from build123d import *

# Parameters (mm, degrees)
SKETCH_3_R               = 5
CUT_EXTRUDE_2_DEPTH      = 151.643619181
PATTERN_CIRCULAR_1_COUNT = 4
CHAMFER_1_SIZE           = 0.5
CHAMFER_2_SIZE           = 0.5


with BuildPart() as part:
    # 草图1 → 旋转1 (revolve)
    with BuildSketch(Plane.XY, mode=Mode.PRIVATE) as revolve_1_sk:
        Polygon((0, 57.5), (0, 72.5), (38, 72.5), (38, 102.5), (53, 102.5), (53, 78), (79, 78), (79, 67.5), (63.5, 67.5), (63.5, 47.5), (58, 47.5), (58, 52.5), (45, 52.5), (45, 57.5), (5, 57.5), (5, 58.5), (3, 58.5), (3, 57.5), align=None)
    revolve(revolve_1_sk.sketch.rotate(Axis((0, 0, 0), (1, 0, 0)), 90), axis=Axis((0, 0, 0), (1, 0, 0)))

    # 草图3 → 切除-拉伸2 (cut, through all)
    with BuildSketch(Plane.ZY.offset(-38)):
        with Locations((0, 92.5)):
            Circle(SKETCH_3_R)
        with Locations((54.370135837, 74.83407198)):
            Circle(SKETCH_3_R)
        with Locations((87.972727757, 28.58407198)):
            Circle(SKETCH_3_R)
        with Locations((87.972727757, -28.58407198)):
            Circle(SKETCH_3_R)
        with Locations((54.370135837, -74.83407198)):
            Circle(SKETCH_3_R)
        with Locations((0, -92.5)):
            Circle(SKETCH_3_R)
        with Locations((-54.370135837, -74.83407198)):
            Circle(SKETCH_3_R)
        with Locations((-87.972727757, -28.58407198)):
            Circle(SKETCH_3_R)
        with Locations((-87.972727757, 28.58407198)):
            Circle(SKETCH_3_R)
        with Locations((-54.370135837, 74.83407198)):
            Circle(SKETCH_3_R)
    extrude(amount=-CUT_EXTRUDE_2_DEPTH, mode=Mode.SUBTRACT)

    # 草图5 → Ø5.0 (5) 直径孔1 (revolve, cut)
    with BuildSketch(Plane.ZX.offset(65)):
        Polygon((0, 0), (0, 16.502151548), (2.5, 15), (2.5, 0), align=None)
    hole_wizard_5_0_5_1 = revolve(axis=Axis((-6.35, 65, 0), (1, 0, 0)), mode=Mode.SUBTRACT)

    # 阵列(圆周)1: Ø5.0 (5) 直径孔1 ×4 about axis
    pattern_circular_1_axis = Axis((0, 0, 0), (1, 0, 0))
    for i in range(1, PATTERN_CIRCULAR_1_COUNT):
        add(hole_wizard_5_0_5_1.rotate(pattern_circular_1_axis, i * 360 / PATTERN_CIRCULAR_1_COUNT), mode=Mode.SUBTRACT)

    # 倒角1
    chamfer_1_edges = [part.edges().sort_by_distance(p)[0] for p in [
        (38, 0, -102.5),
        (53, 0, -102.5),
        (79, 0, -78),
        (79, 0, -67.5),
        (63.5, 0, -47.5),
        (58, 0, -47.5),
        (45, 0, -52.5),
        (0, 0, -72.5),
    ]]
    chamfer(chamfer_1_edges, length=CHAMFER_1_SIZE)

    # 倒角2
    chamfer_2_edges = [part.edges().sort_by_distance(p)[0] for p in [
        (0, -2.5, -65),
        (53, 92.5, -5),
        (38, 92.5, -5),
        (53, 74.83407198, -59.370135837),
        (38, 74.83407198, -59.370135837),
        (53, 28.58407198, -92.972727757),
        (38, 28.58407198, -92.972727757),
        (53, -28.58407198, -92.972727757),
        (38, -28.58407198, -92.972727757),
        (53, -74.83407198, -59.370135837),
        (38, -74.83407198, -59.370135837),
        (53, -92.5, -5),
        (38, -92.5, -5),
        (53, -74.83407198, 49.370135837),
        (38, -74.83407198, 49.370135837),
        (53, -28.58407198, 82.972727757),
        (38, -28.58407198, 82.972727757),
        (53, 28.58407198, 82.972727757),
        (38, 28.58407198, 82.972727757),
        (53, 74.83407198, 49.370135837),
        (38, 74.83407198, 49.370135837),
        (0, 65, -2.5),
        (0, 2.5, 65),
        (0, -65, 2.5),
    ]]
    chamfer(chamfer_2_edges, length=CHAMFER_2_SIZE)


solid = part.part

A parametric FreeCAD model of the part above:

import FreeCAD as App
import Part
import Sketcher

V = App.Vector
Q = App.Units.Quantity


def edges_at(feature, points):
    """Names of the edges that pass closest to the given points."""
    edges = feature.Shape.Edges
    near = lambda p: min(range(len(edges)), key=lambda i: edges[i].distToShape(Part.Vertex(*p))[0])
    return sorted({f"Edge{near(p) + 1}" for p in points})


def add_polygon(sketch, points):
    """Adds a closed chain of lines whose ends are joined by coincident constraints."""
    first, n = sketch.GeometryCount, len(points)
    for a, b in zip(points, points[1:] + points[:1]):
        sketch.addGeometry(Part.LineSegment(App.Vector(*a, 0), App.Vector(*b, 0)), False)
    for i in range(n):
        sketch.addConstraint(Sketcher.Constraint("Coincident", first + i, 2, first + (i + 1) % n, 1))

doc = App.newDocument("Part")
body = doc.addObject("PartDesign::Body", "Body")

# Sketch on XY plane
sketch1 = body.newObject("Sketcher::SketchObject", "Sketch")
sketch1.AttachmentSupport = (doc.getObject("XY_Plane"), [""])
sketch1.MapMode = "FlatFace"
add_polygon(sketch1, [(0, 72.5), (0, 57.5), (3, 57.5), (3, 58.5), (5, 58.5), (5, 57.5), (45, 57.5), (45, 52.5), (58, 52.5), (58, 47.5), (63.5, 47.5), (63.5, 67.5), (79, 67.5), (79, 78), (53, 78), (53, 102.5), (38, 102.5), (38, 72.5)])  # lines 0-17
sketch1.addConstraint(Sketcher.Constraint("Vertical", 0))
sketch1.addConstraint(Sketcher.Constraint("Horizontal", 1))
sketch1.addConstraint(Sketcher.Constraint("Vertical", 2))
sketch1.addConstraint(Sketcher.Constraint("Horizontal", 3))
sketch1.addConstraint(Sketcher.Constraint("Vertical", 4))
sketch1.addConstraint(Sketcher.Constraint("Horizontal", 5))
sketch1.addConstraint(Sketcher.Constraint("Vertical", 6))
sketch1.addConstraint(Sketcher.Constraint("Horizontal", 7))
sketch1.addConstraint(Sketcher.Constraint("Vertical", 8))
sketch1.addConstraint(Sketcher.Constraint("Horizontal", 9))
sketch1.addConstraint(Sketcher.Constraint("Vertical", 10))
sketch1.addConstraint(Sketcher.Constraint("Horizontal", 11))
sketch1.addConstraint(Sketcher.Constraint("Vertical", 12))
sketch1.addConstraint(Sketcher.Constraint("Horizontal", 13))
sketch1.addConstraint(Sketcher.Constraint("Vertical", 14))
sketch1.addConstraint(Sketcher.Constraint("Horizontal", 15))
sketch1.addConstraint(Sketcher.Constraint("Vertical", 16))
sketch1.addConstraint(Sketcher.Constraint("Horizontal", 17))
sketch1.addConstraint(Sketcher.Constraint("PointOnObject", 0, 2, -2))
sketch1.addConstraint(Sketcher.Constraint("Horizontal", 1, 2, 4, 2))
sketch1.addConstraint(Sketcher.Constraint("Equal", 15, 0))
sketch1.addConstraint(Sketcher.Constraint("Equal", 6, 8))
sketch1.addConstraint(Sketcher.Constraint("DistanceX", 1, 1, 1, 2, 3.0))
sketch1.addConstraint(Sketcher.Constraint("DistanceX", 3, 1, 3, 2, 2.0))
sketch1.addConstraint(Sketcher.Constraint("DistanceX", 5, 1, 5, 2, 40.0))
sketch1.addConstraint(Sketcher.Constraint("DistanceX", 7, 1, 7, 2, 13.0))
sketch1.addConstraint(Sketcher.Constraint("DistanceX", 13, 2, 13, 1, 26.0))
sketch1.addConstraint(Sketcher.Constraint("DistanceX", 15, 2, 15, 1, 15.0))
sketch1.addConstraint(Sketcher.Constraint("DistanceX", 17, 2, 17, 1, 38.0))
sketch1.addConstraint(Sketcher.Constraint("DistanceY", 2, 1, 2, 2, 1.0))
sketch1.addConstraint(Sketcher.Constraint("DistanceY", 6, 2, 6, 1, 5.0))
sketch1.addConstraint(Sketcher.Constraint("DistanceY", 10, 1, 10, 2, 20.0))
sketch1.addConstraint(Sketcher.Constraint("DistanceY", 16, 2, 16, 1, 30.0))
sketch1.addConstraint(Sketcher.Constraint("DistanceX", 9, 1, 9, 2, 5.5))
sketch1.addConstraint(Sketcher.Constraint("DistanceY", 12, 1, 12, 2, 10.5))
sketch1.addConstraint(Sketcher.Constraint("DistanceY", -1, 1, 12, 2, 78.0))
revolution = body.newObject("PartDesign::Revolution", "Revolution")
revolution.Profile = sketch1
revolution.ReferenceAxis = (sketch1, ["H_Axis"])
revolution.Angle = 360

# Sketch on YZ plane
sketch2 = body.newObject("Sketcher::SketchObject", "Sketch001")
sketch2.AttachmentSupport = (doc.getObject("YZ_Plane"), [""])
sketch2.MapMode = "FlatFace"
sketch2.AttachmentOffset = App.Placement(V(0, 0, 38), App.Rotation())
sketch2.addGeometry(Part.Circle(V(92.5, 0, 0), V(0, 0, 1), 5), False)
sketch2.addGeometry(Part.Circle(V(74.834072, 54.370136, 0), V(0, 0, 1), 5), False)
sketch2.addGeometry(Part.Circle(V(28.584072, 87.972728, 0), V(0, 0, 1), 5), False)
sketch2.addGeometry(Part.Circle(V(-28.584072, 87.972728, 0), V(0, 0, 1), 5), False)
sketch2.addGeometry(Part.Circle(V(-74.834072, 54.370136, 0), V(0, 0, 1), 5), False)
sketch2.addGeometry(Part.Circle(V(-92.5, 0, 0), V(0, 0, 1), 5), False)
sketch2.addGeometry(Part.Circle(V(-74.834072, -54.370136, 0), V(0, 0, 1), 5), False)
sketch2.addGeometry(Part.Circle(V(-28.584072, -87.972728, 0), V(0, 0, 1), 5), False)
sketch2.addGeometry(Part.Circle(V(28.584072, -87.972728, 0), V(0, 0, 1), 5), False)
sketch2.addGeometry(Part.Circle(V(74.834072, -54.370136, 0), V(0, 0, 1), 5), False)
sketch2.addConstraint(Sketcher.Constraint("Equal", 0, 1))
sketch2.addConstraint(Sketcher.Constraint("Equal", 1, 2))
sketch2.addConstraint(Sketcher.Constraint("Equal", 2, 3))
sketch2.addConstraint(Sketcher.Constraint("Equal", 3, 4))
sketch2.addConstraint(Sketcher.Constraint("Equal", 4, 5))
sketch2.addConstraint(Sketcher.Constraint("Equal", 5, 6))
sketch2.addConstraint(Sketcher.Constraint("Equal", 6, 7))
sketch2.addConstraint(Sketcher.Constraint("Equal", 7, 8))
sketch2.addConstraint(Sketcher.Constraint("Equal", 8, 9))
sketch2.addConstraint(Sketcher.Constraint("Symmetric", 0, 3, 5, 3, -1, 1))
sketch2.addConstraint(Sketcher.Constraint("Symmetric", 1, 3, 6, 3, -1, 1))
sketch2.addConstraint(Sketcher.Constraint("Symmetric", 2, 3, 7, 3, -1, 1))
sketch2.addConstraint(Sketcher.Constraint("Symmetric", 3, 3, 8, 3, -1, 1))
sketch2.addConstraint(Sketcher.Constraint("Symmetric", 4, 3, 9, 3, -1, 1))
sketch2.addConstraint(Sketcher.Constraint("Symmetric", 2, 3, 3, 3, -2))
sketch2.addConstraint(Sketcher.Constraint("Symmetric", 1, 3, 4, 3, -2))
sketch2.addConstraint(Sketcher.Constraint("PointOnObject", 0, 3, -1))
sketch2.addConstraint(Sketcher.Constraint("Diameter", 0, 10.0))
sketch2.addConstraint(Sketcher.Constraint("DistanceX", 5, 3, 0, 3, 185.0))
sketch2.addConstraint(Sketcher.Constraint("DistanceX", 2, 3, 1, 3, 46.25))
sketch2.addConstraint(Sketcher.Constraint("DistanceX", -1, 1, 1, 3, 74.834072))
sketch2.addConstraint(Sketcher.Constraint("DistanceY", 1, 3, 2, 3, 33.602592))
sketch2.addConstraint(Sketcher.Constraint("DistanceY", 6, 3, 4, 3, 108.740272))
pocket1 = body.newObject("PartDesign::Pocket", "Pocket")
pocket1.Profile = sketch2
pocket1.Type = "ThroughAll"
pocket1.Reversed = True

# Sketch on XZ plane
sketch3 = body.newObject("Sketcher::SketchObject", "Sketch002")
sketch3.AttachmentSupport = (doc.getObject("XZ_Plane"), [""])
sketch3.MapMode = "FlatFace"
sketch3.AttachmentOffset = App.Placement(V(0, 0, -65), App.Rotation())
add_polygon(sketch3, [(16.502152, 0), (0, 0), (0, 2.5), (15, 2.5)])  # lines 0-3
sketch3.addConstraint(Sketcher.Constraint("Horizontal", 0))
sketch3.addConstraint(Sketcher.Constraint("Vertical", 1))
sketch3.addConstraint(Sketcher.Constraint("Horizontal", 2))
sketch3.addConstraint(Sketcher.Constraint("Coincident", 0, 2, -1, 1))
sketch3.addConstraint(Sketcher.Constraint("DistanceX", 2, 1, 2, 2, 15.0))
sketch3.addConstraint(Sketcher.Constraint("Angle", 3, Q("-59 deg")))
sketch3.addConstraint(Sketcher.Constraint("DistanceY", 1, 1, 1, 2, 2.5))
groove = body.newObject("PartDesign::Groove", "Groove")
groove.Profile = sketch3
groove.ReferenceAxis = (sketch3, ["H_Axis"])
groove.Angle = 360
doc.recompute()

polarpattern = body.newObject("PartDesign::PolarPattern", "PolarPattern")
polarpattern.Originals = [groove]
polarpattern.Axis = (doc.getObject("X_Axis"), [""])
polarpattern.Angle = 360
polarpattern.Occurrences = 4
body.Tip = polarpattern
doc.recompute()

chamfer = body.newObject("PartDesign::Chamfer", "Chamfer")
chamfer.Base = (polarpattern, edges_at(polarpattern, [
    (38, 0, -102.5),
    (53, 0, -102.5),
    (79, 0, -78),
    (79, 0, -67.5),
    (63.5, 0, -47.5),
    (58, 0, -47.5),
    (45, 0, -52.5),
    (0, 0, -72.5),
]))
chamfer.Size = 0.5
doc.recompute()

chamfer2 = body.newObject("PartDesign::Chamfer", "Chamfer001")
chamfer2.Base = (chamfer, edges_at(chamfer, [
    (0, -2.5, -65),
    (53, 92.5, -5),
    (38, 92.5, -5),
    (53, 74.834, -59.37),
    (38, 74.834, -59.37),
    (53, 28.584, -92.973),
    (38, 28.584, -92.973),
    (53, -28.584, -92.973),
    (38, -28.584, -92.973),
    (53, -74.834, -59.37),
    (38, -74.834, -59.37),
    (53, -92.5, -5),
    (38, -92.5, -5),
    (53, -74.834, 49.37),
    (38, -74.834, 49.37),
    (53, -28.584, 82.973),
    (38, -28.584, 82.973),
    (53, 28.584, 82.973),
    (38, 28.584, 82.973),
    (53, 74.834, 49.37),
    (38, 74.834, 49.37),
    (0, 65, -2.5),
    (0, 2.5, 65),
    (0, -65, 2.5),
]))
chamfer2.Size = 0.5

doc.recompute()
